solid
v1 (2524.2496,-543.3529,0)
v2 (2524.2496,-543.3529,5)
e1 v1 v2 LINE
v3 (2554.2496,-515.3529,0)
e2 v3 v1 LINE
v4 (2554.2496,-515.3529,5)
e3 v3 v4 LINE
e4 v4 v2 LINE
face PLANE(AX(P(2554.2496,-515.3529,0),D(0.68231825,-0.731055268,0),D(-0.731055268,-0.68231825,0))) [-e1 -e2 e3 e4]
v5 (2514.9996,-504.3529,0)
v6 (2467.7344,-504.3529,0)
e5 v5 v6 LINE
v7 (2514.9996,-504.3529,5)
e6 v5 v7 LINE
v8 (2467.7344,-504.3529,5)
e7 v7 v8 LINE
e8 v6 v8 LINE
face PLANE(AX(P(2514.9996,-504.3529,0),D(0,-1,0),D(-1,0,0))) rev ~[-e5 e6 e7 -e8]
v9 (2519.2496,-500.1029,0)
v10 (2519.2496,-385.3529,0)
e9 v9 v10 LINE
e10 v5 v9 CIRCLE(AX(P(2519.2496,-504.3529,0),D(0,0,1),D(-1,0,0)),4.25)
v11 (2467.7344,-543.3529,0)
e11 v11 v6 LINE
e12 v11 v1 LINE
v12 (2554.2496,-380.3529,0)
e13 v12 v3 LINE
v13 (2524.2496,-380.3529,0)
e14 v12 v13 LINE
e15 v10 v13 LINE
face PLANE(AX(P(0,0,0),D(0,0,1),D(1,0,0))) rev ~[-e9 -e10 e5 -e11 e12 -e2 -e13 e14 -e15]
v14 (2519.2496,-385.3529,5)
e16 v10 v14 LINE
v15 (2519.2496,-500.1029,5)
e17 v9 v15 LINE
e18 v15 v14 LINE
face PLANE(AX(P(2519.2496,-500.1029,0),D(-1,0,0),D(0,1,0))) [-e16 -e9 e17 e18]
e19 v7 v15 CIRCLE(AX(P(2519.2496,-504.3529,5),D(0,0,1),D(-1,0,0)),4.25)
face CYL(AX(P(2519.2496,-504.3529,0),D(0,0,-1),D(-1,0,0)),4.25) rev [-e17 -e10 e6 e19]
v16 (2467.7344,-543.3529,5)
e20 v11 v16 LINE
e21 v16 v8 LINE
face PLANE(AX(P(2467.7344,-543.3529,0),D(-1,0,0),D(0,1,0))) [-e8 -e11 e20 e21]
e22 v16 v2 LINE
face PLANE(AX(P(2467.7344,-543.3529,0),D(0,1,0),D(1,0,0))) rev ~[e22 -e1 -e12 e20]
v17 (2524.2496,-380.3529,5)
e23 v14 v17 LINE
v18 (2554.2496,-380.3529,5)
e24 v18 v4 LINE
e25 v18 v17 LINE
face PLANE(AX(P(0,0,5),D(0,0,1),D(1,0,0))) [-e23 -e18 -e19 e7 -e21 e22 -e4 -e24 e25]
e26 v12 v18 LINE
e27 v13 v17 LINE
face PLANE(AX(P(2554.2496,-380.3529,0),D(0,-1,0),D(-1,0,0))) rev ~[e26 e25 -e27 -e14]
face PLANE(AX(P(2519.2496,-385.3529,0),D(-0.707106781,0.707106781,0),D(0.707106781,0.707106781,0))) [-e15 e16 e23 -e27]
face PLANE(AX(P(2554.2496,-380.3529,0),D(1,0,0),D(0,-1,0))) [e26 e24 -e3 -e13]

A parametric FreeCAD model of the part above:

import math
import FreeCAD as App
import Part
import Sketcher

V = App.Vector
Q = App.Units.Quantity

doc = App.newDocument("Part")
params = doc.addObject("Spreadsheet::Sheet", "Params")
for row, (alias, value) in enumerate([
    ("sketch1_height", "39 mm"),
    ("sketch1_height2", "135 mm"),
    ("sketch1_radius", "4.25 mm"),
    ("pad1_length", "5 mm"),
], start=1):
    params.set(f"A{row}", alias)
    params.set(f"B{row}", "=" + value)
    params.setAlias(f"B{row}", alias)

body = doc.addObject("PartDesign::Body", "Body")

# Sketch on XY plane
sketch1 = body.newObject("Sketcher::SketchObject", "Sketch")
sketch1.AttachmentSupport = (doc.getObject("XY_Plane"), [""])
sketch1.MapMode = "FlatFace"
sketch1.addGeometry(Part.LineSegment(V(2519.2, -385.4, 0), V(2519.2, -500.1, 0)), False)
sketch1.addGeometry(Part.ArcOfCircle(Part.Circle(V(2519.2, -504.4, 0), V(0, 0, 1), 4.2), math.radians(180), math.radians(450)), False)
sketch1.addGeometry(Part.LineSegment(V(2515, -504.4, 0), V(2467.7, -504.4, 0)), False)
sketch1.addGeometry(Part.LineSegment(V(2467.7, -504.4, 0), V(2467.7, -543.4, 0)), False)
sketch1.addGeometry(Part.LineSegment(V(2467.7, -543.4, 0), V(2524.2, -543.4, 0)), False)
sketch1.addGeometry(Part.LineSegment(V(2524.2, -543.4, 0), V(2554.2, -515.4, 0)), False)
sketch1.addGeometry(Part.LineSegment(V(2554.2, -515.4, 0), V(2554.2, -380.4, 0)), False)
sketch1.addGeometry(Part.LineSegment(V(2554.2, -380.4, 0), V(2524.2, -380.4, 0)), False)
sketch1.addGeometry(Part.LineSegment(V(2524.2, -380.4, 0), V(2519.2, -385.4, 0)), False)
sketch1.addConstraint(Sketcher.Constraint("Coincident", 0, 2, 1, 2))
sketch1.addConstraint(Sketcher.Constraint("Coincident", 1, 1, 2, 1))
sketch1.addConstraint(Sketcher.Constraint("Coincident", 2, 2, 3, 1))
sketch1.addConstraint(Sketcher.Constraint("Coincident", 3, 2, 4, 1))
sketch1.addConstraint(Sketcher.Constraint("Coincident", 4, 2, 5, 1))
sketch1.addConstraint(Sketcher.Constraint("Coincident", 5, 2, 6, 1))
sketch1.addConstraint(Sketcher.Constraint("Coincident", 6, 2, 7, 1))
sketch1.addConstraint(Sketcher.Constraint("Coincident", 7, 2, 8, 1))
sketch1.addConstraint(Sketcher.Constraint("Coincident", 8, 2, 0, 1))
sketch1.addConstraint(Sketcher.Constraint("Vertical", 0))
sketch1.addConstraint(Sketcher.Constraint("Horizontal", 2))
sketch1.addConstraint(Sketcher.Constraint("Vertical", 3))
sketch1.addConstraint(Sketcher.Constraint("Horizontal", 4))
sketch1.addConstraint(Sketcher.Constraint("Vertical", 6))
sketch1.addConstraint(Sketcher.Constraint("Horizontal", 7))
sketch1.addConstraint(Sketcher.Constraint("Vertical", 1, 3, 0, 2))
sketch1.addConstraint(Sketcher.Constraint("Vertical", 4, 2, 7, 2))
sketch1.addConstraint(Sketcher.Constraint("DistanceY", 3, 2, 3, 1, 39.0))
sketch1.addConstraint(Sketcher.Constraint("DistanceY", 6, 1, 6, 2, 135.0))
sketch1.addConstraint(Sketcher.Constraint("Angle", 8, Q("-135 deg")))
sketch1.addConstraint(Sketcher.Constraint("Radius", 1, 4.25))
sketch1.addConstraint(Sketcher.Constraint("DistanceY", 3, 2, 1, 3, 39.0))
sketch1.addConstraint(Sketcher.Constraint("DistanceX", 1, 3, 4, 2, 5.0))
sketch1.addConstraint(Sketcher.Constraint("DistanceX", 1, 3, 5, 2, 35.0))
sketch1.addConstraint(Sketcher.Constraint("DistanceX", 4, 1, 4, 2, 56.5152))
sketch1.addConstraint(Sketcher.Constraint("DistanceY", 5, 2, 1, 3, 11.0))
sketch1.addConstraint(Sketcher.Constraint("DistanceY", 1, 3, -1, 1, 504.353))
sketch1.addConstraint(Sketcher.Constraint("DistanceX", -1, 1, 1, 3, 2519.2496))
sketch1.setExpression("Constraints[17]", "Params.sketch1_height")
sketch1.setExpression("Constraints[18]", "Params.sketch1_height2")
sketch1.setExpression("Constraints[20]", "Params.sketch1_radius")
pad1 = body.newObject("PartDesign::Pad", "Pad")
pad1.Profile = sketch1
pad1.setExpression("Length", "Params.pad1_length")

doc.recompute()
